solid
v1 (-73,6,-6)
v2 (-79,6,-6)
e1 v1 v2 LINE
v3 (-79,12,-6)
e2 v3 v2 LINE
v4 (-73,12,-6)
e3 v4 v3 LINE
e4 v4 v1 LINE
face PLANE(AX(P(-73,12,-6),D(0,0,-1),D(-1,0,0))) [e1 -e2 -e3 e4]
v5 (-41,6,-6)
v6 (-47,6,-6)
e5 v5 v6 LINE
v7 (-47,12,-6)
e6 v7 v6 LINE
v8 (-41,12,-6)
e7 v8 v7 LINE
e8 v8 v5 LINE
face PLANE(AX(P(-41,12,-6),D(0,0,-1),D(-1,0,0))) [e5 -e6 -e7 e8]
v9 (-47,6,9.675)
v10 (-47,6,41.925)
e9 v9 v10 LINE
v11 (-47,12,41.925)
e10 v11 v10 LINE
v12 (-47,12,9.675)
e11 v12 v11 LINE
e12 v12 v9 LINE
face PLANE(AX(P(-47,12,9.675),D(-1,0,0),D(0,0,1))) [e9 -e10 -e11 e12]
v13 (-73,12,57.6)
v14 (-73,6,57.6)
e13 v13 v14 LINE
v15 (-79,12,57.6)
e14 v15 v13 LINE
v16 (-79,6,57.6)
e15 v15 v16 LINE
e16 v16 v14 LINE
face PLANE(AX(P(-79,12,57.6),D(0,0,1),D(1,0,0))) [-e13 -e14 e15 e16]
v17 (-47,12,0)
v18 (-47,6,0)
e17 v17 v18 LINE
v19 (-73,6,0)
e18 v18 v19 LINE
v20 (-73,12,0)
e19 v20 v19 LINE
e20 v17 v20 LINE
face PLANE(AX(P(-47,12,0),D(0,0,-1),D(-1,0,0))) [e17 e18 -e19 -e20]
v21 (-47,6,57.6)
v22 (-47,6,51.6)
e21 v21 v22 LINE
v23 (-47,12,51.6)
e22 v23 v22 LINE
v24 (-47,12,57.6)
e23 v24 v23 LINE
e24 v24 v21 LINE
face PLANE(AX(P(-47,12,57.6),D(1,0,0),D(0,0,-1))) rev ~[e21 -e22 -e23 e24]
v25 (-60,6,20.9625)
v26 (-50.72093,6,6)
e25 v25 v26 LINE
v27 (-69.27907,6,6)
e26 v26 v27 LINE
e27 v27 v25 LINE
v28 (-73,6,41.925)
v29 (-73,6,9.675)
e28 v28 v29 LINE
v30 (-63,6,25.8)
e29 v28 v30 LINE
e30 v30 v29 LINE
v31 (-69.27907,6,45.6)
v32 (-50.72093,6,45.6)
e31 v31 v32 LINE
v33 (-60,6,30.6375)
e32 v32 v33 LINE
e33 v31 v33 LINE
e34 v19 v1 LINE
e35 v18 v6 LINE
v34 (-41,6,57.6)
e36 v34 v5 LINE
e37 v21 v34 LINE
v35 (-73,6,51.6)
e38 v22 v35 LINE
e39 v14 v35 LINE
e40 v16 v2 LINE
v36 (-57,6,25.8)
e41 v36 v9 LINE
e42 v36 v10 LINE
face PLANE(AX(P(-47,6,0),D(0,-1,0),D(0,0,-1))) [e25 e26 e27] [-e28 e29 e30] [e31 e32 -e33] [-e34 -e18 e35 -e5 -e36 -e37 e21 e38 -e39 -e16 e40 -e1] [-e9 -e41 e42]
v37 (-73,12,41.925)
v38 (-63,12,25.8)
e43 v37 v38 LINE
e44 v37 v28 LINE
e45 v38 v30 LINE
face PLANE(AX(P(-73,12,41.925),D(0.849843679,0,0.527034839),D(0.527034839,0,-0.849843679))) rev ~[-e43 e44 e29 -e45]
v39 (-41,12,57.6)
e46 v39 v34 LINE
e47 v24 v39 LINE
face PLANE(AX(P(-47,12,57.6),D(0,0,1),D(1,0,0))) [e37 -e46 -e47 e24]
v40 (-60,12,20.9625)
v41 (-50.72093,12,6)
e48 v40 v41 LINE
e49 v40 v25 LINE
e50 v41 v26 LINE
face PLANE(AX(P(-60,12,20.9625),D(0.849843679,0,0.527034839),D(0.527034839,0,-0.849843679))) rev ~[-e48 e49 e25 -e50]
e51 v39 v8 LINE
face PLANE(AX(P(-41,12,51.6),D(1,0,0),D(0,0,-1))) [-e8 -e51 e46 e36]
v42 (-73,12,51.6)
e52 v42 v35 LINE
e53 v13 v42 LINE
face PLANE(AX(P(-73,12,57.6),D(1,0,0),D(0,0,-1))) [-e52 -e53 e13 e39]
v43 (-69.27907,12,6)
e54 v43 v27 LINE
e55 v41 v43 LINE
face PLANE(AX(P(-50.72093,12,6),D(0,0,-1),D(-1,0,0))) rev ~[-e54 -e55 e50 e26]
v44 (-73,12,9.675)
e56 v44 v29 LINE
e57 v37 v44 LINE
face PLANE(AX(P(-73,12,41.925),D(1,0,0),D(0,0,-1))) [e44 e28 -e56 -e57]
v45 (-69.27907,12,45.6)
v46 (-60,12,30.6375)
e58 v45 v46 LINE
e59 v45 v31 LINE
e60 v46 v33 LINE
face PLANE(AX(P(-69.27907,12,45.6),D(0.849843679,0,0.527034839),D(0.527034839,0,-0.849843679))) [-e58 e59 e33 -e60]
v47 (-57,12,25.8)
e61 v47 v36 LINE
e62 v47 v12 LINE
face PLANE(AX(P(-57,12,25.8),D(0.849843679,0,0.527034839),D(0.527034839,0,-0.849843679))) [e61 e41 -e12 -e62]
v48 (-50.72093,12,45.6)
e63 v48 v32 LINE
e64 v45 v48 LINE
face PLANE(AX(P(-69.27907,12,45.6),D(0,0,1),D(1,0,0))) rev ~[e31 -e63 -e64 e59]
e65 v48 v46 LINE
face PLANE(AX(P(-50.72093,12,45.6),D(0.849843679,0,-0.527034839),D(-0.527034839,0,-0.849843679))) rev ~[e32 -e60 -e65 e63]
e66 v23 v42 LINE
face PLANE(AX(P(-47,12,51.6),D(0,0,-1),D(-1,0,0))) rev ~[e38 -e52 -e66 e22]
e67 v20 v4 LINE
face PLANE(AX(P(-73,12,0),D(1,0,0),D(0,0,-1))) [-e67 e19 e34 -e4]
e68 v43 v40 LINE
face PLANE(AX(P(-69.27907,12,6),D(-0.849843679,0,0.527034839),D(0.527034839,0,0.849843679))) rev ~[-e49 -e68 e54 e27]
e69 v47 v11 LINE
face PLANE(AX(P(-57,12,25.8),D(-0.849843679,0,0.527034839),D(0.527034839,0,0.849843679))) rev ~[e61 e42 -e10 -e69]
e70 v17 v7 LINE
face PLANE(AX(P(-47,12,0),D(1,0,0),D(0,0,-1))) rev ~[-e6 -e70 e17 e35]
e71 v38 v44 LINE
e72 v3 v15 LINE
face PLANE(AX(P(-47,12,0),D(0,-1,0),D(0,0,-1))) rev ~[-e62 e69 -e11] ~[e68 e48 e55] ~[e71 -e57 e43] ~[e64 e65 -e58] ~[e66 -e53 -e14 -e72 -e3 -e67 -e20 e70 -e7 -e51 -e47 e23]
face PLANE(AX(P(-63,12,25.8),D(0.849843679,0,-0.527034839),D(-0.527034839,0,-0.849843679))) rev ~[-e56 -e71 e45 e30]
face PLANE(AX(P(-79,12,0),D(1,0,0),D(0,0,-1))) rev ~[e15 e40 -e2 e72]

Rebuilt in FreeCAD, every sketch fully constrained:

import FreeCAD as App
import Part
import Sketcher

V = App.Vector

doc = App.newDocument("Part")
body = doc.addObject("PartDesign::Body", "Body")

# Sketch on XZ plane
sketch1 = body.newObject("Sketcher::SketchObject", "Sketch")
sketch1.AttachmentSupport = (doc.getObject("XZ_Plane"), [""])
sketch1.MapMode = "FlatFace"
sketch1.AttachmentOffset = App.Placement(V(0, 0, -12), App.Rotation())
sketch1.addGeometry(Part.LineSegment(V(-41, 58, 0), V(-47, 58, 0)), False)
sketch1.addGeometry(Part.LineSegment(V(-47, 58, 0), V(-47, 52, 0)), False)
sketch1.addGeometry(Part.LineSegment(V(-47, 52, 0), V(-73, 52, 0)), False)
sketch1.addGeometry(Part.LineSegment(V(-73, 52, 0), V(-73, 58, 0)), False)
sketch1.addGeometry(Part.LineSegment(V(-73, 58, 0), V(-79, 58, 0)), False)
sketch1.addGeometry(Part.LineSegment(V(-79, 58, 0), V(-79, -6, 0)), False)
sketch1.addGeometry(Part.LineSegment(V(-79, -6, 0), V(-73, -6, 0)), False)
sketch1.addGeometry(Part.LineSegment(V(-73, -6, 0), V(-73, 0, 0)), False)
sketch1.addGeometry(Part.LineSegment(V(-73, 0, 0), V(-47, 0, 0)), False)
sketch1.addGeometry(Part.LineSegment(V(-47, 0, 0), V(-47, -6, 0)), False)
sketch1.addGeometry(Part.LineSegment(V(-47, -6, 0), V(-41, -6, 0)), False)
sketch1.addGeometry(Part.LineSegment(V(-41, -6, 0), V(-41, 58, 0)), False)
sketch1.addGeometry(Part.LineSegment(V(-47, 10, 0), V(-57, 26, 0)), False)
sketch1.addGeometry(Part.LineSegment(V(-57, 26, 0), V(-47, 42, 0)), False)
sketch1.addGeometry(Part.LineSegment(V(-47, 42, 0), V(-47, 10, 0)), False)
sketch1.addGeometry(Part.LineSegment(V(-60, 21, 0), V(-51, 6, 0)), False)
sketch1.addGeometry(Part.LineSegment(V(-51, 6, 0), V(-69, 6, 0)), False)
sketch1.addGeometry(Part.LineSegment(V(-69, 6, 0), V(-60, 21, 0)), False)
sketch1.addGeometry(Part.LineSegment(V(-63, 26, 0), V(-73, 10, 0)), False)
sketch1.addGeometry(Part.LineSegment(V(-73, 10, 0), V(-73, 42, 0)), False)
sketch1.addGeometry(Part.LineSegment(V(-73, 42, 0), V(-63, 26, 0)), False)
sketch1.addGeometry(Part.LineSegment(V(-60, 31, 0), V(-69, 46, 0)), False)
sketch1.addGeometry(Part.LineSegment(V(-69, 46, 0), V(-51, 46, 0)), False)
sketch1.addGeometry(Part.LineSegment(V(-51, 46, 0), V(-60, 31, 0)), False)
sketch1.addConstraint(Sketcher.Constraint("Coincident", 0, 2, 1, 1))
sketch1.addConstraint(Sketcher.Constraint("Coincident", 1, 2, 2, 1))
sketch1.addConstraint(Sketcher.Constraint("Coincident", 2, 2, 3, 1))
sketch1.addConstraint(Sketcher.Constraint("Coincident", 3, 2, 4, 1))
sketch1.addConstraint(Sketcher.Constraint("Coincident", 4, 2, 5, 1))
sketch1.addConstraint(Sketcher.Constraint("Coincident", 5, 2, 6, 1))
sketch1.addConstraint(Sketcher.Constraint("Coincident", 6, 2, 7, 1))
sketch1.addConstraint(Sketcher.Constraint("Coincident", 7, 2, 8, 1))
sketch1.addConstraint(Sketcher.Constraint("Coincident", 8, 2, 9, 1))
sketch1.addConstraint(Sketcher.Constraint("Coincident", 9, 2, 10, 1))
sketch1.addConstraint(Sketcher.Constraint("Coincident", 10, 2, 11, 1))
sketch1.addConstraint(Sketcher.Constraint("Coincident", 11, 2, 0, 1))
sketch1.addConstraint(Sketcher.Constraint("Coincident", 12, 2, 13, 1))
sketch1.addConstraint(Sketcher.Constraint("Coincident", 13, 2, 14, 1))
sketch1.addConstraint(Sketcher.Constraint("Coincident", 14, 2, 12, 1))
sketch1.addConstraint(Sketcher.Constraint("Coincident", 15, 2, 16, 1))
sketch1.addConstraint(Sketcher.Constraint("Coincident", 16, 2, 17, 1))
sketch1.addConstraint(Sketcher.Constraint("Coincident", 17, 2, 15, 1))
sketch1.addConstraint(Sketcher.Constraint("Coincident", 18, 2, 19, 1))
sketch1.addConstraint(Sketcher.Constraint("Coincident", 19, 2, 20, 1))
sketch1.addConstraint(Sketcher.Constraint("Coincident", 20, 2, 18, 1))
sketch1.addConstraint(Sketcher.Constraint("Coincident", 21, 2, 22, 1))
sketch1.addConstraint(Sketcher.Constraint("Coincident", 22, 2, 23, 1))
sketch1.addConstraint(Sketcher.Constraint("Coincident", 23, 2, 21, 1))
sketch1.addConstraint(Sketcher.Constraint("Horizontal", 0))
sketch1.addConstraint(Sketcher.Constraint("Vertical", 1))
sketch1.addConstraint(Sketcher.Constraint("Horizontal", 2))
sketch1.addConstraint(Sketcher.Constraint("Vertical", 3))
sketch1.addConstraint(Sketcher.Constraint("Horizontal", 4))
sketch1.addConstraint(Sketcher.Constraint("Vertical", 5))
sketch1.addConstraint(Sketcher.Constraint("Horizontal", 6))
sketch1.addConstraint(Sketcher.Constraint("Vertical", 7))
sketch1.addConstraint(Sketcher.Constraint("Horizontal", 8))
sketch1.addConstraint(Sketcher.Constraint("Vertical", 9))
sketch1.addConstraint(Sketcher.Constraint("Horizontal", 10))
sketch1.addConstraint(Sketcher.Constraint("Vertical", 11))
sketch1.addConstraint(Sketcher.Constraint("Vertical", 14))
sketch1.addConstraint(Sketcher.Constraint("Horizontal", 16))
sketch1.addConstraint(Sketcher.Constraint("Vertical", 19))
sketch1.addConstraint(Sketcher.Constraint("Horizontal", 22))
sketch1.addConstraint(Sketcher.Constraint("PointOnObject", 7, 2, -1))
sketch1.addConstraint(Sketcher.Constraint("Parallel", 12, 15))
sketch1.addConstraint(Sketcher.Constraint("Parallel", 13, 17))
sketch1.addConstraint(Sketcher.Constraint("Parallel", 17, 18))
sketch1.addConstraint(Sketcher.Constraint("Parallel", 15, 20))
sketch1.addConstraint(Sketcher.Constraint("Parallel", 20, 21))
sketch1.addConstraint(Sketcher.Constraint("Parallel", 18, 23))
sketch1.addConstraint(Sketcher.Constraint("Horizontal", 0, 2, 3, 2))
sketch1.addConstraint(Sketcher.Constraint("Horizontal", 6, 2, 9, 2))
sketch1.addConstraint(Sketcher.Constraint("Horizontal", 14, 2, 18, 2))
sketch1.addConstraint(Sketcher.Constraint("Horizontal", 13, 2, 19, 2))
sketch1.addConstraint(Sketcher.Constraint("Horizontal", 12, 2, 20, 2))
sketch1.addConstraint(Sketcher.Constraint("Vertical", 3, 2, 6, 2))
sketch1.addConstraint(Sketcher.Constraint("Vertical", 1, 2, 8, 2))
sketch1.addConstraint(Sketcher.Constraint("Vertical", 9, 2, 13, 2))
sketch1.addConstraint(Sketcher.Constraint("Vertical", 7, 2, 18, 2))
sketch1.addConstraint(Sketcher.Constraint("Vertical", 16, 2, 21, 2))
sketch1.addConstraint(Sketcher.Constraint("Vertical", 15, 2, 22, 2))
sketch1.addConstraint(Sketcher.Constraint("Equal", 0, 4))
sketch1.addConstraint(Sketcher.Constraint("Equal", 10, 1))
sketch1.addConstraint(Sketcher.Constraint("Equal", 3, 7))
sketch1.addConstraint(Sketcher.Constraint("DistanceX", 0, 2, 0, 1, 6.0))
sketch1.addConstraint(Sketcher.Constraint("DistanceX", 2, 2, 2, 1, 26.0))
sketch1.addConstraint(Sketcher.Constraint("DistanceY", 5, 2, 5, 1, 63.6))
sketch1.addConstraint(Sketcher.Constraint("DistanceX", 0, 2, -1, 1, 47.0))
sketch1.addConstraint(Sketcher.Constraint("DistanceX", 12, 2, -1, 1, 57.0))
sketch1.addConstraint(Sketcher.Constraint("DistanceY", -1, 1, 15, 2, 6.0))
sketch1.addConstraint(Sketcher.Constraint("DistanceX", 17, 2, -1, 1, 60.0))
sketch1.addConstraint(Sketcher.Constraint("DistanceY", 21, 2, 2, 2, 6.0))
sketch1.addConstraint(Sketcher.Constraint("DistanceY", 14, 2, 14, 1, 32.25))
sketch1.addConstraint(Sketcher.Constraint("DistanceY", -1, 1, 12, 2, 25.8))
sketch1.addConstraint(Sketcher.Constraint("DistanceX", 16, 2, 16, 1, 18.5581))
pad1 = body.newObject("PartDesign::Pad", "Pad")
pad1.Profile = sketch1
pad1.Length = 6

doc.recompute()
